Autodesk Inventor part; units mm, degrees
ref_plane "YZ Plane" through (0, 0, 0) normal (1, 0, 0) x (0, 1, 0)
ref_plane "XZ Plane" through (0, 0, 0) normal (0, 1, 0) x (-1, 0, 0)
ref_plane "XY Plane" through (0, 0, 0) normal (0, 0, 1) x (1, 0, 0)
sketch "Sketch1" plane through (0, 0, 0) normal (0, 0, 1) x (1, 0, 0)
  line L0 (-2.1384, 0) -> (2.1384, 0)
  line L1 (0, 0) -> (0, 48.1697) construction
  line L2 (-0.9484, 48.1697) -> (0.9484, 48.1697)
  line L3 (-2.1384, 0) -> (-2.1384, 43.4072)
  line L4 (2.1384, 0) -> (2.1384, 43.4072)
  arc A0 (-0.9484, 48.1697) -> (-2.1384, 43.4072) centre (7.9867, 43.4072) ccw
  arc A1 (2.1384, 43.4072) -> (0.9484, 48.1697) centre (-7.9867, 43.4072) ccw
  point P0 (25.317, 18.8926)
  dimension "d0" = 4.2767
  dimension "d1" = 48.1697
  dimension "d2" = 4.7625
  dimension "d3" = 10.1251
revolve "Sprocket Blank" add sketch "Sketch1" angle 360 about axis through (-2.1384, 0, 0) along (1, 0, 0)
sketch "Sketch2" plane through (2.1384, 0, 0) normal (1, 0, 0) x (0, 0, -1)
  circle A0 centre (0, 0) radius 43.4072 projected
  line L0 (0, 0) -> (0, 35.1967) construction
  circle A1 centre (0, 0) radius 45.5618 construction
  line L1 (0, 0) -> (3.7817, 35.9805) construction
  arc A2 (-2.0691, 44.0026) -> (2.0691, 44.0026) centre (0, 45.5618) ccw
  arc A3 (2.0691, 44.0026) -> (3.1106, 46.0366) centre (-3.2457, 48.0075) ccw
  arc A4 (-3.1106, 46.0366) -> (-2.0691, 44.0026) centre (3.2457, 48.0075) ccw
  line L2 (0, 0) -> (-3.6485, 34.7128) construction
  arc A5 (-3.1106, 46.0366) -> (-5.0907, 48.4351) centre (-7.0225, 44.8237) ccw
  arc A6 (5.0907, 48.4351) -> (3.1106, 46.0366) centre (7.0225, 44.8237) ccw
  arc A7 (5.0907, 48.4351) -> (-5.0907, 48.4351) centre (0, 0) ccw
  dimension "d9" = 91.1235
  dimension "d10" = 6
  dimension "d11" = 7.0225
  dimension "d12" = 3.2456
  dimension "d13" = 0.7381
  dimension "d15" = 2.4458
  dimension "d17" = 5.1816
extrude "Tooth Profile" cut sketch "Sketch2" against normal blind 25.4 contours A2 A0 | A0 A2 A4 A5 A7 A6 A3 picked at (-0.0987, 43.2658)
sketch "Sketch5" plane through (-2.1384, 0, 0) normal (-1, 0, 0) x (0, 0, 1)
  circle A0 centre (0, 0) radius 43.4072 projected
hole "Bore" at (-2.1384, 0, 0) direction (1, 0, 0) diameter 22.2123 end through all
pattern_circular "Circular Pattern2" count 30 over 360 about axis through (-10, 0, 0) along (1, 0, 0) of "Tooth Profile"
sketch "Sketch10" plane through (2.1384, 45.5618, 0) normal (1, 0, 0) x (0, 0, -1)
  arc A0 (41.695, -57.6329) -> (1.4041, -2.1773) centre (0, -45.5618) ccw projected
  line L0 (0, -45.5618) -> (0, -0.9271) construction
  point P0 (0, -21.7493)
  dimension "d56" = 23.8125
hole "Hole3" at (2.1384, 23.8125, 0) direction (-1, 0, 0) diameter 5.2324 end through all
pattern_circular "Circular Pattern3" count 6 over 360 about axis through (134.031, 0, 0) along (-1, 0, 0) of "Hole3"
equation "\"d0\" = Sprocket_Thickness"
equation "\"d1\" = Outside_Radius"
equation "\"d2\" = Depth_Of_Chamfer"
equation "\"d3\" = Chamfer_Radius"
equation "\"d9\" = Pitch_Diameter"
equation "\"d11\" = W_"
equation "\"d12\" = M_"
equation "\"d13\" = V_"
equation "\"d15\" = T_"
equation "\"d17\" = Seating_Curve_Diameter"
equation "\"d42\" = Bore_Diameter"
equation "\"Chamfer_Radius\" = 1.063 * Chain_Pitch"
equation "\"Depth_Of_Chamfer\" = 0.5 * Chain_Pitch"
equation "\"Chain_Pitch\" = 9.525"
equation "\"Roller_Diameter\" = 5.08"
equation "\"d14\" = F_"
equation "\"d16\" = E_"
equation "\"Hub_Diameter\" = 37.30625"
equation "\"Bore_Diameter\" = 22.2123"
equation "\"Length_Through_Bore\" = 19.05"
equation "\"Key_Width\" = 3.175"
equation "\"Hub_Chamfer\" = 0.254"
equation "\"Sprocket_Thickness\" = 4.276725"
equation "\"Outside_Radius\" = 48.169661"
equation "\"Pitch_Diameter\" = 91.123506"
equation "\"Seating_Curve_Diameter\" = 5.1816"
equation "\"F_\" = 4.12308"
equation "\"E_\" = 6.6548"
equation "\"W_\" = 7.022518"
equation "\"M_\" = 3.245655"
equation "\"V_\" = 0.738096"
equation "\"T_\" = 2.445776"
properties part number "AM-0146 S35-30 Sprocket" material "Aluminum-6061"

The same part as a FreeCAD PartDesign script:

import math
import FreeCAD as App
import Part
import Sketcher

V = App.Vector
Q = App.Units.Quantity

doc = App.newDocument("Part")
body = doc.addObject("PartDesign::Body", "Body")

# Sketch on XY plane
sketch1 = body.newObject("Sketcher::SketchObject", "Sketch")
sketch1.AttachmentSupport = (doc.getObject("XY_Plane"), [""])
sketch1.MapMode = "FlatFace"
sketch1.addGeometry([
    Part.LineSegment(V(-2.1384, 43.4072, 0), V(-2.1384, 0, 0)),  # 0
    Part.LineSegment(V(-2.1384, 0, 0), V(2.1384, 0, 0)),  # 1
    Part.LineSegment(V(2.1384, 0, 0), V(2.1384, 43.4072, 0)),  # 2
    Part.ArcOfCircle(Part.Circle(V(-7.9867, 43.4072, 0), V(0, 0, 1), 10.1251), math.radians(0), math.radians(28.058074)),  # 3
    Part.LineSegment(V(0.9484, 48.1697, 0), V(-0.9484, 48.1697, 0)),  # 4
    Part.ArcOfCircle(Part.Circle(V(7.9867, 43.4072, 0), V(0, 0, 1), 10.125089), math.radians(151.941926), math.radians(180)),  # 5
], False)
sketch1.addConstraint([
    Sketcher.Constraint("Coincident", 0, 2, 1, 1),
    Sketcher.Constraint("Coincident", 1, 2, 2, 1),
    Sketcher.Constraint("Tangent", 2, 2, 3, 1),
    Sketcher.Constraint("Coincident", 3, 2, 4, 1),
    Sketcher.Constraint("Coincident", 4, 2, 5, 1),
    Sketcher.Constraint("Tangent", 5, 2, 0, 1),
    Sketcher.Constraint("Vertical", 0),
    Sketcher.Constraint("Horizontal", 1),
    Sketcher.Constraint("Vertical", 2),
    Sketcher.Constraint("Horizontal", 4),
    Sketcher.Constraint("Equal", 3, 5),
    Sketcher.Constraint("Symmetric", 0, 2, 1, 2, -1, 1),
    Sketcher.Constraint("Horizontal", 3, 3, 5, 3),
    Sketcher.Constraint("Radius", 3, Q("10.125 mm")),
    Sketcher.Constraint("DistanceY", 2, 2, 3, 2, Q("0.1875 in")),
    Sketcher.Constraint("DistanceX", 1, 1, 1, 2, Q("4.2768 mm")),
    Sketcher.Constraint("DistanceY", -1, 1, 3, 2, Q("48.1697 mm")),
])
revolution = body.newObject("PartDesign::Revolution", "Revolution")
revolution.Profile = sketch1
revolution.ReferenceAxis = (sketch1, ["H_Axis"])
revolution.Angle = 360

# Sketch on YZ plane
sketch2 = body.newObject("Sketcher::SketchObject", "Sketch001")
sketch2.AttachmentSupport = (doc.getObject("YZ_Plane"), [""])
sketch2.MapMode = "FlatFace"
sketch2.AttachmentOffset = App.Placement(V(0, 0, 0.084189 * 25.4), App.Rotation())
sketch2.addGeometry([
    Part.ArcOfCircle(Part.Circle(V(48.008408, 3.24715, 0), V(0, 0, 1), 6.656501), math.radians(-126.998119), math.radians(-107.23088)),  # 0
    Part.ArcOfCircle(Part.Circle(V(44.8237, -7.0225, 0), V(0, 0, 1), 4.095615), math.radians(28.143093), math.radians(72.773744)),  # 1
    Part.ArcOfCircle(Part.Circle(V(0, 0, 0), V(0, 0, 1), 48.701891), math.radians(-5.99996), math.radians(5.99996)),  # 2
    Part.ArcOfCircle(Part.Circle(V(44.8237, 7.0225, 0), V(0, 0, 1), 4.095618), math.radians(-72.773744), math.radians(-28.143093)),  # 3
    Part.ArcOfCircle(Part.Circle(V(48.006855, -3.244117, 0), V(0, 0, 1), 6.653144), math.radians(107.225843), math.radians(127.003156)),  # 4
    Part.ArcOfCircle(Part.Circle(V(45.5618, 0, 0), V(0, 0, 1), 2.590807), math.radians(127.000376), math.radians(232.999624)),  # 5
], False)
sketch2.addConstraint([
    Sketcher.Constraint("Coincident", 0, 2, 1, 2),
    Sketcher.Constraint("Coincident", 1, 1, 2, 1),
    Sketcher.Constraint("Coincident", 2, 2, 3, 2),
    Sketcher.Constraint("Coincident", 3, 1, 4, 1),
    Sketcher.Constraint("Coincident", 4, 2, 5, 1),
    Sketcher.Constraint("Coincident", 5, 2, 0, 1),
    Sketcher.Constraint("Coincident", 2, 3, -1, 1),
    Sketcher.Constraint("PointOnObject", 5, 3, -1),
    Sketcher.Constraint("Radius", 5, Q("0.102 in")),
    Sketcher.Constraint("Radius", 2, Q("1.9174 in")),
    Sketcher.Constraint("DistanceY", 1, 3, -1, 1, Q("7.0225 mm")),
    Sketcher.Constraint("DistanceY", -1, 1, 3, 3, Q("7.0225 mm")),
    Sketcher.Constraint("Radius", 0, Q("6.6565 mm")),
    Sketcher.Constraint("Radius", 1, Q("4.0956 mm")),
    Sketcher.Constraint("Radius", 3, Q("4.0956 mm")),
    Sketcher.Constraint("Radius", 4, Q("6.6531 mm")),
    Sketcher.Constraint("DistanceX", 1, 3, 5, 3, Q("0.738 mm")),
    Sketcher.Constraint("DistanceX", 3, 3, 5, 3, Q("0.738 mm")),
    Sketcher.Constraint("DistanceY", 1, 3, 0, 2, Q("0.154 in")),
    Sketcher.Constraint("DistanceY", 3, 1, 3, 3, Q("0.154 in")),
    Sketcher.Constraint("DistanceY", 4, 2, 3, 1, Q("0.041 in")),
    Sketcher.Constraint("DistanceY", 0, 2, 5, 2, Q("0.041 in")),
    Sketcher.Constraint("DistanceX", -1, 1, 0, 3, Q("1.8901 in")),
])
pocket1 = body.newObject("PartDesign::Pocket", "Pocket")
pocket1.Profile = sketch2
pocket1.Length = Q("1 in")

# Sketch on YZ plane
sketch3 = body.newObject("Sketcher::SketchObject", "Sketch002")
sketch3.AttachmentSupport = (doc.getObject("YZ_Plane"), [""])
sketch3.MapMode = "FlatFace"
sketch3.AttachmentOffset = App.Placement(V(0, 0, -0.084189 * 25.4), App.Rotation())
sketch3.addGeometry(Part.Circle(V(0, 0, 0), V(0, 0, 1), 11.10615), False)
sketch3.addConstraint([
    Sketcher.Constraint("Coincident", 0, 3, -1, 1),
    Sketcher.Constraint("Diameter", 0, Q("0.8745 in")),
])
doc.recompute()
hole = body.newObject("PartDesign::Hole", "Hole")
hole.Profile = sketch3
hole.ThreadType = "None"
hole.Diameter = Q("0.8745 in")
hole.DepthType = "ThroughAll"
hole.Reversed = True
doc.recompute()

polarpattern = body.newObject("PartDesign::PolarPattern", "PolarPattern")
polarpattern.Originals = [pocket1]
polarpattern.Axis = (doc.getObject("X_Axis"), [""])
polarpattern.Angle = 360
polarpattern.Occurrences = 30
body.Tip = polarpattern

# Sketch on YZ plane
sketch4 = body.newObject("Sketcher::SketchObject", "Sketch003")
sketch4.AttachmentSupport = (doc.getObject("YZ_Plane"), [""])
sketch4.MapMode = "FlatFace"
sketch4.AttachmentOffset = App.Placement(V(0, 0, 0.084189 * 25.4), App.Rotation())
sketch4.addGeometry(Part.Circle(V(23.8125, 0, 0), V(0, 0, 1), 2.6162), False)
sketch4.addConstraint([
    Sketcher.Constraint("PointOnObject", 0, 3, -1),
    Sketcher.Constraint("Diameter", 0, Q("0.206 in")),
    Sketcher.Constraint("DistanceX", -1, 1, 0, 3, Q("0.9375 in")),
])
doc.recompute()
hole2 = body.newObject("PartDesign::Hole", "Hole001")
hole2.Profile = sketch4
hole2.ThreadType = "None"
hole2.Diameter = Q("0.206 in")
hole2.DepthType = "ThroughAll"
doc.recompute()

polarpattern2 = body.newObject("PartDesign::PolarPattern", "PolarPattern001")
polarpattern2.Originals = [hole2]
polarpattern2.Axis = (doc.getObject("X_Axis"), [""])
polarpattern2.Angle = 360
polarpattern2.Occurrences = 6
body.Tip = polarpattern2

doc.recompute()
